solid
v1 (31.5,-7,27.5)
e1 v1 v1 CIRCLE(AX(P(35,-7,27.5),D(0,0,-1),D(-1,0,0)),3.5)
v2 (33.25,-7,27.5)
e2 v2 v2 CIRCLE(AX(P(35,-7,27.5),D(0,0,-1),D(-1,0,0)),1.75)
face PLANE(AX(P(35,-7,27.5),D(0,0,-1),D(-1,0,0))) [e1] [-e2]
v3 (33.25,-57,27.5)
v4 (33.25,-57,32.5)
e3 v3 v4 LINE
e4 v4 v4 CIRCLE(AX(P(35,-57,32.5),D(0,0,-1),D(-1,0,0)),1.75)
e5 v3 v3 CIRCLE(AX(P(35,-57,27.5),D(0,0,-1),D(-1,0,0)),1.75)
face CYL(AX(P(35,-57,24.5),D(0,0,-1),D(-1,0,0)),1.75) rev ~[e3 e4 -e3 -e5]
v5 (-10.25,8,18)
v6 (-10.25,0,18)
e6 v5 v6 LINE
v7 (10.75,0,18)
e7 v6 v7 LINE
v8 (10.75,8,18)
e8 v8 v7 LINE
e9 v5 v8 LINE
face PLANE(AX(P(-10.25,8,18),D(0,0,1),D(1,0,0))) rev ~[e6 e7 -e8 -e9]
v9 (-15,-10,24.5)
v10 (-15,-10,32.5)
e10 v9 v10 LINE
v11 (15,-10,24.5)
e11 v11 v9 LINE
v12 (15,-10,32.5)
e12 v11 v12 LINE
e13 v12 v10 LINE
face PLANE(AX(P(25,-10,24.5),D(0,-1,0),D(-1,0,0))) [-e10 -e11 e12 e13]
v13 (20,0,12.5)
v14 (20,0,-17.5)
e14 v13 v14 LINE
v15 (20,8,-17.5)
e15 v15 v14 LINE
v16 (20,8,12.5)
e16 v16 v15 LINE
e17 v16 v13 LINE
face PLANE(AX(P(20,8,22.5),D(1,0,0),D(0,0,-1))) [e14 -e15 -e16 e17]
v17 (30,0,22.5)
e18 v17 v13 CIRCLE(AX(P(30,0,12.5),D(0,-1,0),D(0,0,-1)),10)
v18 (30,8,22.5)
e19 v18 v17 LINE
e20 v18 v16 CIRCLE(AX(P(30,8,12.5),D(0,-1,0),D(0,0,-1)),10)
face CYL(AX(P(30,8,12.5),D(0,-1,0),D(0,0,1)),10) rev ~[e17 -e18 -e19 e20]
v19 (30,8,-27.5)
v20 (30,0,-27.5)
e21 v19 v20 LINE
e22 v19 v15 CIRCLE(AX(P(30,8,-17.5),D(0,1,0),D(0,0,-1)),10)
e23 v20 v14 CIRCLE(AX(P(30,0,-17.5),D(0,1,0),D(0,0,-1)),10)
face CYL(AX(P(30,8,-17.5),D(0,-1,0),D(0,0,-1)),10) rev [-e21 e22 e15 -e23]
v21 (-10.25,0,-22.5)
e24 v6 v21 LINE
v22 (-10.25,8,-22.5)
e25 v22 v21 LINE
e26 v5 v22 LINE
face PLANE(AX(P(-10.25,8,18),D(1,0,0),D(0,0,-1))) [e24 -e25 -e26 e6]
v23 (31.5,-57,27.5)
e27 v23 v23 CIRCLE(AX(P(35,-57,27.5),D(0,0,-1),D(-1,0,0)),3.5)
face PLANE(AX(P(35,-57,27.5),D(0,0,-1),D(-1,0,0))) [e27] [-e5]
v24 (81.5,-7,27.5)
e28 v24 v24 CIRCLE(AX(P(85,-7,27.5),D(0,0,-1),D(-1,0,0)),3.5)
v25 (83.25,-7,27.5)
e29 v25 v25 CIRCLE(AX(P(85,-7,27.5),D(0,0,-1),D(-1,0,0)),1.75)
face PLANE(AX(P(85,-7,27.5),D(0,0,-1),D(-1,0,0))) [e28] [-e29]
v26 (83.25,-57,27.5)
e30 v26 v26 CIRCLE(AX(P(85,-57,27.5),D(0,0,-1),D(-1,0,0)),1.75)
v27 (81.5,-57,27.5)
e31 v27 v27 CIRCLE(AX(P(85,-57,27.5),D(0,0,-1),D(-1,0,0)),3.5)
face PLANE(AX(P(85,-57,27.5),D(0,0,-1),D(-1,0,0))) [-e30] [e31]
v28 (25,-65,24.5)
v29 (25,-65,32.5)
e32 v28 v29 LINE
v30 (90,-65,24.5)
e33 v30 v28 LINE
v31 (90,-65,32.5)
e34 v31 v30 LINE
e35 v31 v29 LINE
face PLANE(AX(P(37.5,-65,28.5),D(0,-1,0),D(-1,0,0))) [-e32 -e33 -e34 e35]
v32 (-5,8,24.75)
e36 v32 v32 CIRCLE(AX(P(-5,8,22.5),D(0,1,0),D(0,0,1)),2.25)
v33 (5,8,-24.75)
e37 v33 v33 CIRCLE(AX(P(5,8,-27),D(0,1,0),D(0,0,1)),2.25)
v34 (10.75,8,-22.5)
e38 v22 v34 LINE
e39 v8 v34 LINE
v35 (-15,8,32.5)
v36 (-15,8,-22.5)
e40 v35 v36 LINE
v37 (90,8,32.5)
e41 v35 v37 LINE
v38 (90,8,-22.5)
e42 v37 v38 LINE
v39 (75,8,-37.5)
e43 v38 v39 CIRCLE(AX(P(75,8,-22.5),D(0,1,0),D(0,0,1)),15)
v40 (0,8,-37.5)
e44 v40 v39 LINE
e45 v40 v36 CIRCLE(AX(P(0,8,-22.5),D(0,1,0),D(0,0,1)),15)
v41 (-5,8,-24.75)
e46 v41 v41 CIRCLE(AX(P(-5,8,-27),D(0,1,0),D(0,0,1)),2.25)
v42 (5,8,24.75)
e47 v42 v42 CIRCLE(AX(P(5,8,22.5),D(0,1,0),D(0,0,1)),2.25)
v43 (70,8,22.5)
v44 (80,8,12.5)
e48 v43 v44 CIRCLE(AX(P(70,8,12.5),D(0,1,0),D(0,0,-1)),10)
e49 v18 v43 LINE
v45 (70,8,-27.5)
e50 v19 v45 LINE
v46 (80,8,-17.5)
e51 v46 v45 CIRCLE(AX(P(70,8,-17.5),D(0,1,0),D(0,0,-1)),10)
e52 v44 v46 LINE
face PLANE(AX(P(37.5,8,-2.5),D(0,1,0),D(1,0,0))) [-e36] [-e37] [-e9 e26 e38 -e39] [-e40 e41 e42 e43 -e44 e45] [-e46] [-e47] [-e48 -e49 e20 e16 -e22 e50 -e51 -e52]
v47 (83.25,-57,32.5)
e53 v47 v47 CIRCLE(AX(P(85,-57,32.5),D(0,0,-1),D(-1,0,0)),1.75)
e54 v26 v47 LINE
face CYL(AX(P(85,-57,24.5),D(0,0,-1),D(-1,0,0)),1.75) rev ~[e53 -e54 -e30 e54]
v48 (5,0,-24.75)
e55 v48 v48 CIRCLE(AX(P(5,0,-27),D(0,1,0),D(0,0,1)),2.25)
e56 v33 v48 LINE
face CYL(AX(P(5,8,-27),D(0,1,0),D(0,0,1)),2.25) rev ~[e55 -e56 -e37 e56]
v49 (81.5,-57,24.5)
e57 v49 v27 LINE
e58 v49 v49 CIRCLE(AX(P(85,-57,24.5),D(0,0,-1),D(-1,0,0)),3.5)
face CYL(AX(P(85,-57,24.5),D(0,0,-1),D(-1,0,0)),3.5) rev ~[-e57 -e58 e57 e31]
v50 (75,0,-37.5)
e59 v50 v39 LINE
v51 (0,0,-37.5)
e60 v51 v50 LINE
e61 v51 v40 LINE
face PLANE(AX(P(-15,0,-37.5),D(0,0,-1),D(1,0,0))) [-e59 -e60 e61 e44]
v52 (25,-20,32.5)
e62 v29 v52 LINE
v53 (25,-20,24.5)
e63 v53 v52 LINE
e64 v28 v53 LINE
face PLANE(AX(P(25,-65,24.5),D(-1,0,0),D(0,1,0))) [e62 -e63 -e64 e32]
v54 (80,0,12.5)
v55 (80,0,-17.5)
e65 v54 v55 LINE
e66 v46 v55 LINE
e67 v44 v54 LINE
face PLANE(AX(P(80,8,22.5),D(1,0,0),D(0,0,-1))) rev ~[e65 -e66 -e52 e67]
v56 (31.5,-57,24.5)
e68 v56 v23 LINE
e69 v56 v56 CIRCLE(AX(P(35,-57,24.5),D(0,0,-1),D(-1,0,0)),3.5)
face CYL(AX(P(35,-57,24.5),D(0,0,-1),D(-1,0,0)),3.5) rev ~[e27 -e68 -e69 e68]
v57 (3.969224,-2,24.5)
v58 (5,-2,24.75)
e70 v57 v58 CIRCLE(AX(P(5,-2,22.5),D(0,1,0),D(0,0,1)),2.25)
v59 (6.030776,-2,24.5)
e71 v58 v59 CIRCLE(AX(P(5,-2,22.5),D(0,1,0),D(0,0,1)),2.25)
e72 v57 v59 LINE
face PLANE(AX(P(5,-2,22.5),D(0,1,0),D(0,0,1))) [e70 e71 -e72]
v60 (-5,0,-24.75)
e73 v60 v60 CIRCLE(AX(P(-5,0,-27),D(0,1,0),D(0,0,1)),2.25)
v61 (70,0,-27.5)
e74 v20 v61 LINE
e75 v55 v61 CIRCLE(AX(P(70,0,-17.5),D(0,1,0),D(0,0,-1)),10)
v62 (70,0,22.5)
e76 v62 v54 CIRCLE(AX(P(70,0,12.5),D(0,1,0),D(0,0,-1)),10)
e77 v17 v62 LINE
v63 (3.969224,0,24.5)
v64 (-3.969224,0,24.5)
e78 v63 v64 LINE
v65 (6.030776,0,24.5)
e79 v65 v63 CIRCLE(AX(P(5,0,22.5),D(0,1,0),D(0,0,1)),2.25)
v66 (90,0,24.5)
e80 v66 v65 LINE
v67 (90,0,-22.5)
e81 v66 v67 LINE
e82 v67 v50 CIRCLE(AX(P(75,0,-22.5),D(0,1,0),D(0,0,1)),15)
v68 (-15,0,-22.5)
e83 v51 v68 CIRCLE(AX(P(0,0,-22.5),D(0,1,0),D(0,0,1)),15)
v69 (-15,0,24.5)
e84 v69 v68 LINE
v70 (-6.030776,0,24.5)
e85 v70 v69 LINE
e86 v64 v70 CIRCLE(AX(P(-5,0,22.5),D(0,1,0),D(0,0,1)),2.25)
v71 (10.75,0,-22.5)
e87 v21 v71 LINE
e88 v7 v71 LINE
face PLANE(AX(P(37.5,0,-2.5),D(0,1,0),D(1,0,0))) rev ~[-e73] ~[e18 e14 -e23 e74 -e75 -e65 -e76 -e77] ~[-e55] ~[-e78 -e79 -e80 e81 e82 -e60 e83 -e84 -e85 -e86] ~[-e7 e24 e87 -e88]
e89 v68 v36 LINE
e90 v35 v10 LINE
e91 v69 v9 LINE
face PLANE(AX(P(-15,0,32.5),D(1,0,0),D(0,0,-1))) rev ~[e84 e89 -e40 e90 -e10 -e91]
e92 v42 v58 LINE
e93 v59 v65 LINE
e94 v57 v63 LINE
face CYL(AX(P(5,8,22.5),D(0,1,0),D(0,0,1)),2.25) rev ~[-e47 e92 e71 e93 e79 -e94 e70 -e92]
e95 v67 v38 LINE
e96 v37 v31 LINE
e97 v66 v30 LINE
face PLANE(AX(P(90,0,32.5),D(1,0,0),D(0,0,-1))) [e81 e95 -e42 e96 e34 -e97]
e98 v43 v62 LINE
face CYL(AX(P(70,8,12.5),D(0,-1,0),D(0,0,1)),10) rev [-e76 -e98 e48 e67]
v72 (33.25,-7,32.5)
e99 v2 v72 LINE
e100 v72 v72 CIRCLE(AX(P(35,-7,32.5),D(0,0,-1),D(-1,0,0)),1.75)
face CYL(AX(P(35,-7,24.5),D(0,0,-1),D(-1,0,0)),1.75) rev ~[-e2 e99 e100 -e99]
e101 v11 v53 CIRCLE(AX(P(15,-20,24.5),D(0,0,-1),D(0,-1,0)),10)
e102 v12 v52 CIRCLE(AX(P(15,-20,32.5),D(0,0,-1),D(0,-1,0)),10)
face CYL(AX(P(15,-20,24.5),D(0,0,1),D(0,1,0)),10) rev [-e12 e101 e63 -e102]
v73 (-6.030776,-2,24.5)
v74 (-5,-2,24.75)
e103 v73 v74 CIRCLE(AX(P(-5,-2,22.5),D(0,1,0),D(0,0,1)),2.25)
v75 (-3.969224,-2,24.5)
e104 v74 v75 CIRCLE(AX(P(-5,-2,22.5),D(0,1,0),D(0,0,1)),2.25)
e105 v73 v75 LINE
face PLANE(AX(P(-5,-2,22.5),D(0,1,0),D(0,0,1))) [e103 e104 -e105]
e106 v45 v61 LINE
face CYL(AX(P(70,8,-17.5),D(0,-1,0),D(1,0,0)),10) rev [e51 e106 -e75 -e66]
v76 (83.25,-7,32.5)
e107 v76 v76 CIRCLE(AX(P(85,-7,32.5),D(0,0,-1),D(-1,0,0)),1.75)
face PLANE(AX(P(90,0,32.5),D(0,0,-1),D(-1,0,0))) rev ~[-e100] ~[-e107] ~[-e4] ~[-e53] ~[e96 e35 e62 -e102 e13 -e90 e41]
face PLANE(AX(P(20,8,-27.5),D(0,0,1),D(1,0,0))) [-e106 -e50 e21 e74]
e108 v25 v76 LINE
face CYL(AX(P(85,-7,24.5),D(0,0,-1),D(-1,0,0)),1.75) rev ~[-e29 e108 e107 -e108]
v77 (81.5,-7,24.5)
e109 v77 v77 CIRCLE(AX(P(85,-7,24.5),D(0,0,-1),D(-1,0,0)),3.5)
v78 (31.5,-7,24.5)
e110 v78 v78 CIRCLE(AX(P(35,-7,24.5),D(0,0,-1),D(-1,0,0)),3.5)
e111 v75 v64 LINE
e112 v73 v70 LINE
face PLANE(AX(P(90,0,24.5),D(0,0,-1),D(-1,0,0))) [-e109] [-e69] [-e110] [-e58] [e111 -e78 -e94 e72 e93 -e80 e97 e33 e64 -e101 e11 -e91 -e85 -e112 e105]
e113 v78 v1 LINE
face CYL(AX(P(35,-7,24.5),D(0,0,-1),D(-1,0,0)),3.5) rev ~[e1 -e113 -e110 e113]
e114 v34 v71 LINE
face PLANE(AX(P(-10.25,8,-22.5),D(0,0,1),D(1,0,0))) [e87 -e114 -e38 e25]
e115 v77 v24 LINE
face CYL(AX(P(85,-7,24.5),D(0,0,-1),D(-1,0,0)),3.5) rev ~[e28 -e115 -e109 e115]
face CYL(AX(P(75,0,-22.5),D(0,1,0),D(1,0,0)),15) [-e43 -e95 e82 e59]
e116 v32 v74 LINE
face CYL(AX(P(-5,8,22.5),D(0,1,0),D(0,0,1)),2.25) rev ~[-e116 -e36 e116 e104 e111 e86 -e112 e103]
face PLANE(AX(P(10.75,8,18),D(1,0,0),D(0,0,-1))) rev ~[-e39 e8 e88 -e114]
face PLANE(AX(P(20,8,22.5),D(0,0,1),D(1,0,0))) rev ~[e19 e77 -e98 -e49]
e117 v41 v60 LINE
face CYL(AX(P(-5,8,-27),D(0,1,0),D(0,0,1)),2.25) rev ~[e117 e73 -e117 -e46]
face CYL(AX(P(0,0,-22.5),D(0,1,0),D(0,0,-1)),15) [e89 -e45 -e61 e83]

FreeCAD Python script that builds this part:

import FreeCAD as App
import Part
import Sketcher
Q = App.Units.Quantity


def edges_at(feature, points):
    """Names of the edges that pass closest to the given points."""
    edges = feature.Shape.Edges
    near = lambda p: min(range(len(edges)), key=lambda i: edges[i].distToShape(Part.Vertex(*p))[0])
    return sorted({f"Edge{near(p) + 1}" for p in points})


def add_polygon(sketch, points):
    """Adds a closed chain of lines whose ends are joined by coincident constraints."""
    first, n = sketch.GeometryCount, len(points)
    for a, b in zip(points, points[1:] + points[:1]):
        sketch.addGeometry(Part.LineSegment(App.Vector(*a, 0), App.Vector(*b, 0)), False)
    for i in range(n):
        sketch.addConstraint(Sketcher.Constraint("Coincident", first + i, 2, first + (i + 1) % n, 1))

doc = App.newDocument("Part")
body = doc.addObject("PartDesign::Body", "Body")

# Sketch on XZ plane
sketch1 = doc.addObject("Sketcher::SketchObject", "Sketch")
body.addObject(sketch1)
sketch1.AttachmentSupport = (doc.XZ_Plane, [""])
sketch1.MapMode = "FlatFace"
add_polygon(sketch1, [(-15, -38), (-15, 32), (90, 32), (90, -38)])  # lines 0-3
sketch1.addConstraint([
    Sketcher.Constraint("Vertical", 0),
    Sketcher.Constraint("Horizontal", 1),
    Sketcher.Constraint("Vertical", 2),
    Sketcher.Constraint("Horizontal", 3),
    Sketcher.Constraint("DistanceX", 1, 1, 1, 2, Q("105 mm")),
    Sketcher.Constraint("DistanceY", 0, 1, 0, 2, Q("70 mm")),
    Sketcher.Constraint("DistanceX", 0, 2, -1, 1, Q("15 mm")),
    Sketcher.Constraint("DistanceY", -1, 1, 0, 2, Q("32.5 mm")),
])
pad1 = doc.addObject("PartDesign::Pad", "Pad")
body.addObject(pad1)
pad1.Profile = sketch1
pad1.Length = 8
pad1.Reversed = True

# Sketch on XZ plane
sketch2 = doc.addObject("Sketcher::SketchObject", "Sketch001")
body.addObject(sketch2)
sketch2.AttachmentSupport = (doc.XZ_Plane, [""])
sketch2.MapMode = "FlatFace"
add_polygon(sketch2, [(90, 24), (90, 32), (-15, 32), (-15, 24)])  # lines 0-3
sketch2.addConstraint([
    Sketcher.Constraint("Vertical", 0),
    Sketcher.Constraint("Horizontal", 1),
    Sketcher.Constraint("Vertical", 2),
    Sketcher.Constraint("Horizontal", 3),
    Sketcher.Constraint("DistanceX", 1, 2, 1, 1, Q("105 mm")),
    Sketcher.Constraint("DistanceY", 0, 1, 0, 2, Q("8 mm")),
    Sketcher.Constraint("DistanceX", -1, 1, 0, 2, Q("90 mm")),
    Sketcher.Constraint("DistanceY", -1, 1, 0, 2, Q("32.5 mm")),
])
pad2 = doc.addObject("PartDesign::Pad", "Pad001")
body.addObject(pad2)
pad2.Profile = sketch2
pad2.Length = 65

# Sketch on XY plane
sketch3 = doc.addObject("Sketcher::SketchObject", "Sketch002")
body.addObject(sketch3)
sketch3.AttachmentSupport = (doc.XY_Plane, [""])
sketch3.MapMode = "FlatFace"
sketch3.AttachmentOffset = App.Placement(App.Vector(0, 0, 24.5), App.Rotation())
sketch3.addGeometry([
    Part.Circle(App.Vector(85, -7, 0), App.Vector(0, 0, 1), 1.8),
    Part.Circle(App.Vector(35, -7, 0), App.Vector(0, 0, 1), 1.8),
    Part.Circle(App.Vector(85, -57, 0), App.Vector(0, 0, 1), 1.8),
    Part.Circle(App.Vector(35, -57, 0), App.Vector(0, 0, 1), 1.8),
], False)
sketch3.addConstraint([
    Sketcher.Constraint("Equal", 0, 1),
    Sketcher.Constraint("Equal", 1, 2),
    Sketcher.Constraint("Equal", 2, 3),
    Sketcher.Constraint("Horizontal", 0, 3, 1, 3),
    Sketcher.Constraint("Horizontal", 2, 3, 3, 3),
    Sketcher.Constraint("Vertical", 0, 3, 2, 3),
    Sketcher.Constraint("Vertical", 1, 3, 3, 3),
    Sketcher.Constraint("Diameter", 0, Q("3.5 mm")),
    Sketcher.Constraint("DistanceX", -1, 1, 0, 3, Q("85 mm")),
    Sketcher.Constraint("DistanceY", 0, 3, -1, 1, Q("7 mm")),
    Sketcher.Constraint("DistanceX", -1, 1, 1, 3, Q("35 mm")),
    Sketcher.Constraint("DistanceY", 2, 3, -1, 1, Q("57 mm")),
])
pocket1 = doc.addObject("PartDesign::Pocket", "Pocket")
body.addObject(pocket1)
pocket1.Profile = sketch3
pocket1.Length = 10
pocket1.Reversed = True

# Sketch on XY plane
sketch4 = doc.addObject("Sketcher::SketchObject", "Sketch003")
body.addObject(sketch4)
sketch4.AttachmentSupport = (doc.XY_Plane, [""])
sketch4.MapMode = "FlatFace"
sketch4.AttachmentOffset = App.Placement(App.Vector(0, 0, 24.5), App.Rotation())
sketch4.addGeometry([
    Part.Circle(App.Vector(85, -7, 0), App.Vector(0, 0, 1), 3.5),
    Part.Circle(App.Vector(35, -7, 0), App.Vector(0, 0, 1), 3.5),
    Part.Circle(App.Vector(35, -57, 0), App.Vector(0, 0, 1), 3.5),
    Part.Circle(App.Vector(85, -57, 0), App.Vector(0, 0, 1), 3.5),
], False)
sketch4.addConstraint([
    Sketcher.Constraint("Equal", 0, 1),
    Sketcher.Constraint("Equal", 1, 2),
    Sketcher.Constraint("Equal", 2, 3),
    Sketcher.Constraint("Horizontal", 0, 3, 1, 3),
    Sketcher.Constraint("Horizontal", 2, 3, 3, 3),
    Sketcher.Constraint("Vertical", 1, 3, 2, 3),
    Sketcher.Constraint("Vertical", 0, 3, 3, 3),
    Sketcher.Constraint("Diameter", 0, Q("7 mm")),
    Sketcher.Constraint("DistanceX", -1, 1, 0, 3, Q("85 mm")),
    Sketcher.Constraint("DistanceY", 0, 3, -1, 1, Q("7 mm")),
    Sketcher.Constraint("DistanceX", -1, 1, 1, 3, Q("35 mm")),
    Sketcher.Constraint("DistanceY", 2, 3, -1, 1, Q("57 mm")),
])
pocket2 = doc.addObject("PartDesign::Pocket", "Pocket001")
body.addObject(pocket2)
pocket2.Profile = sketch4
pocket2.Length = 3
pocket2.Reversed = True

# Sketch on XZ plane
sketch5 = doc.addObject("Sketcher::SketchObject", "Sketch004")
body.addObject(sketch5)
sketch5.AttachmentSupport = (doc.XZ_Plane, [""])
sketch5.MapMode = "FlatFace"
sketch5.AttachmentOffset = App.Placement(App.Vector(0, 0, -8), App.Rotation())
add_polygon(sketch5, [(-10, -22), (-10, 18), (11, 18), (11, -22)])  # lines 0-3
sketch5.addConstraint([
    Sketcher.Constraint("Vertical", 0),
    Sketcher.Constraint("Horizontal", 1),
    Sketcher.Constraint("Vertical", 2),
    Sketcher.Constraint("Horizontal", 3),
    Sketcher.Constraint("DistanceX", 1, 1, 1, 2, Q("21 mm")),
    Sketcher.Constraint("DistanceY", 0, 1, 0, 2, Q("40.5 mm")),
    Sketcher.Constraint("DistanceY", -1, 1, 0, 2, Q("18 mm")),
    Sketcher.Constraint("DistanceX", 0, 2, -1, 1, Q("10.25 mm")),
])
pocket3 = doc.addObject("PartDesign::Pocket", "Pocket002")
body.addObject(pocket3)
pocket3.Profile = sketch5
pocket3.Length = 10
pocket3.Reversed = True

# Sketch on XZ plane
sketch6 = doc.addObject("Sketcher::SketchObject", "Sketch005")
body.addObject(sketch6)
sketch6.AttachmentSupport = (doc.XZ_Plane, [""])
sketch6.MapMode = "FlatFace"
sketch6.AttachmentOffset = App.Placement(App.Vector(0, 0, -8), App.Rotation())
sketch6.addGeometry([
    Part.Circle(App.Vector(-5, -27, 0), App.Vector(0, 0, 1), 2.2),
    Part.Circle(App.Vector(5, -27, 0), App.Vector(0, 0, 1), 2.2),
    Part.Circle(App.Vector(-5, 22.5, 0), App.Vector(0, 0, 1), 2.2),
    Part.Circle(App.Vector(5, 22.5, 0), App.Vector(0, 0, 1), 2.2),
], False)
sketch6.addConstraint([
    Sketcher.Constraint("Equal", 0, 1),
    Sketcher.Constraint("Equal", 1, 2),
    Sketcher.Constraint("Equal", 2, 3),
    Sketcher.Constraint("Symmetric", 0, 3, 1, 3, -2),
    Sketcher.Constraint("Symmetric", 2, 3, 3, 3, -2),
    Sketcher.Constraint("Vertical", 0, 3, 2, 3),
    Sketcher.Constraint("Diameter", 0, Q("4.5 mm")),
    Sketcher.Constraint("DistanceX", 0, 3, -1, 1, Q("5 mm")),
    Sketcher.Constraint("DistanceY", 0, 3, -1, 1, Q("27 mm")),
    Sketcher.Constraint("DistanceY", -1, 1, 2, 3, Q("22.5 mm")),
])
pocket4 = doc.addObject("PartDesign::Pocket", "Pocket003")
body.addObject(pocket4)
pocket4.Profile = sketch6
pocket4.Length = 10
pocket4.Reversed = True
doc.recompute()

fillet = doc.addObject("PartDesign::Fillet", "Fillet")
body.addObject(fillet)
fillet.Base = (pocket4, edges_at(pocket4, [(90, 4, -37.5)]))
fillet.Radius = 15
doc.recompute()

fillet2 = doc.addObject("PartDesign::Fillet", "Fillet001")
body.addObject(fillet2)
fillet2.Base = (fillet, edges_at(fillet, [(-15, 4, -37.5)]))
fillet2.Radius = 15

# Sketch on XZ plane
sketch7 = doc.addObject("Sketcher::SketchObject", "Sketch006")
body.addObject(sketch7)
sketch7.AttachmentSupport = (doc.XZ_Plane, [""])
sketch7.MapMode = "FlatFace"
sketch7.AttachmentOffset = App.Placement(App.Vector(0, 0, -8), App.Rotation())
add_polygon(sketch7, [(20, -28), (20, 22), (80, 22), (80, -28)])  # lines 0-3
sketch7.addConstraint([
    Sketcher.Constraint("Vertical", 0),
    Sketcher.Constraint("Horizontal", 1),
    Sketcher.Constraint("Vertical", 2),
    Sketcher.Constraint("Horizontal", 3),
    Sketcher.Constraint("DistanceX", 1, 1, 1, 2, Q("60 mm")),
    Sketcher.Constraint("DistanceY", 0, 1, 0, 2, Q("50 mm")),
    Sketcher.Constraint("DistanceX", -1, 1, 0, 2, Q("20 mm")),
    Sketcher.Constraint("DistanceY", -1, 1, 0, 2, Q("22.5 mm")),
])
pocket5 = doc.addObject("PartDesign::Pocket", "Pocket004")
body.addObject(pocket5)
pocket5.Profile = sketch7
pocket5.Length = 10
pocket5.Reversed = True
doc.recompute()

fillet3 = doc.addObject("PartDesign::Fillet", "Fillet002")
body.addObject(fillet3)
fillet3.Base = (pocket5, edges_at(pocket5, [(20, 4, 22.5)]))
fillet3.Radius = 10
doc.recompute()

fillet4 = doc.addObject("PartDesign::Fillet", "Fillet003")
body.addObject(fillet4)
fillet4.Base = (fillet3, edges_at(fillet3, [(80, 4, 22.5)]))
fillet4.Radius = 10
doc.recompute()

fillet5 = doc.addObject("PartDesign::Fillet", "Fillet004")
body.addObject(fillet5)
fillet5.Base = (fillet4, edges_at(fillet4, [(80, 4, -27.5)]))
fillet5.Radius = 10
doc.recompute()

fillet6 = doc.addObject("PartDesign::Fillet", "Fillet005")
body.addObject(fillet6)
fillet6.Base = (fillet5, edges_at(fillet5, [(20, 4, -27.5)]))
fillet6.Radius = 10

# Sketch on XY plane
sketch8 = doc.addObject("Sketcher::SketchObject", "Sketch007")
body.addObject(sketch8)
sketch8.AttachmentSupport = (doc.XY_Plane, [""])
sketch8.MapMode = "FlatFace"
sketch8.AttachmentOffset = App.Placement(App.Vector(0, 0, 24.5), App.Rotation())
add_polygon(sketch8, [(25, -10), (25, -65), (-15, -65), (-15, -10)])  # lines 0-3
sketch8.addConstraint([
    Sketcher.Constraint("Vertical", 0),
    Sketcher.Constraint("Horizontal", 1),
    Sketcher.Constraint("Vertical", 2),
    Sketcher.Constraint("Horizontal", 3),
    Sketcher.Constraint("DistanceX", 1, 2, 1, 1, Q("40 mm")),
    Sketcher.Constraint("DistanceY", 0, 2, 0, 1, Q("55 mm")),
    Sketcher.Constraint("DistanceX", -1, 1, 0, 2, Q("25 mm")),
    Sketcher.Constraint("DistanceY", 0, 2, -1, 1, Q("65 mm")),
])
pocket6 = doc.addObject("PartDesign::Pocket", "Pocket005")
body.addObject(pocket6)
pocket6.Profile = sketch8
pocket6.Length = 10
pocket6.Reversed = True
doc.recompute()

fillet7 = doc.addObject("PartDesign::Fillet", "Fillet006")
body.addObject(fillet7)
fillet7.Base = (pocket6, edges_at(pocket6, [(25, -10, 28.5)]))
fillet7.Radius = 10

doc.recompute()
